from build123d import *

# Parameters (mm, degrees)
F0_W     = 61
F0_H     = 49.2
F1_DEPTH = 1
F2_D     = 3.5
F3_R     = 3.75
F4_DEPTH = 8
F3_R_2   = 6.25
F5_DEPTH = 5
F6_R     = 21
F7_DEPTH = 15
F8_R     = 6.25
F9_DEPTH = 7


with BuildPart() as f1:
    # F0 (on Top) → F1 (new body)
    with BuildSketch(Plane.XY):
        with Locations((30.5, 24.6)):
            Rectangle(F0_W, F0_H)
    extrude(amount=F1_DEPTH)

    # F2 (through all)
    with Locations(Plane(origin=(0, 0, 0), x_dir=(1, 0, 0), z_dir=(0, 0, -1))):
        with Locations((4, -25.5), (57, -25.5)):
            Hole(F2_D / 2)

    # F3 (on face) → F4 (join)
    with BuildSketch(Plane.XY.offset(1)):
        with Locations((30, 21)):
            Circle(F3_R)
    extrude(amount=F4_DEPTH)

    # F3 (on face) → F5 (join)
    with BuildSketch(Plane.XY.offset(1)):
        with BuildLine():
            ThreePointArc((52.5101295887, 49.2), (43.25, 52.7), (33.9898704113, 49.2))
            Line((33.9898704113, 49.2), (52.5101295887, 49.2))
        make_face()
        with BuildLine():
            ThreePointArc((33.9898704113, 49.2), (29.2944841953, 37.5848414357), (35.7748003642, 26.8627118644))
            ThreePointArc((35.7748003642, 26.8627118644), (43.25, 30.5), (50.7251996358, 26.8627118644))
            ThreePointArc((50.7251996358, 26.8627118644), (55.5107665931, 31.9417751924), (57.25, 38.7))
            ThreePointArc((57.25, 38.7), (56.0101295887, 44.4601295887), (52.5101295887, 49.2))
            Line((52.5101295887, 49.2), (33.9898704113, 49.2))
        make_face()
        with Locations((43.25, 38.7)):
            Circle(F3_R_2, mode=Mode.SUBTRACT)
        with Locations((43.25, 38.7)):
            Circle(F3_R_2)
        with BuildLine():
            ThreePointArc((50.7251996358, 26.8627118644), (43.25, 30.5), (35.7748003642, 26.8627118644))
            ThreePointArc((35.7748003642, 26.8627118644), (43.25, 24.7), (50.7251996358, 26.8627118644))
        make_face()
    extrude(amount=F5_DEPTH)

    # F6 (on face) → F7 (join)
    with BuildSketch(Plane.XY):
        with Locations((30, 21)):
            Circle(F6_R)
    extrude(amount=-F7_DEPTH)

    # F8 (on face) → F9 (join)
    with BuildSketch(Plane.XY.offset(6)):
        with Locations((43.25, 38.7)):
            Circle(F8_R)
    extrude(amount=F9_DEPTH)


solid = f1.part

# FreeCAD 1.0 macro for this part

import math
import FreeCAD as App
import Part
import Sketcher

V = App.Vector

doc = App.newDocument("Part")
body = doc.addObject("PartDesign::Body", "Body")

# Sketch on XY plane
sketch1 = body.newObject("Sketcher::SketchObject", "Sketch")
sketch1.AttachmentSupport = (doc.getObject("XY_Plane"), [""])
sketch1.MapMode = "FlatFace"
sketch1.addGeometry(Part.LineSegment(V(0, 49, 0), V(0, 0, 0)), False)
sketch1.addGeometry(Part.LineSegment(V(0, 0, 0), V(61, 0, 0)), False)
sketch1.addGeometry(Part.LineSegment(V(61, 0, 0), V(61, 49, 0)), False)
sketch1.addGeometry(Part.LineSegment(V(61, 49, 0), V(0, 49, 0)), False)
sketch1.addConstraint(Sketcher.Constraint("Coincident", 0, 2, 1, 1))
sketch1.addConstraint(Sketcher.Constraint("Coincident", 1, 2, 2, 1))
sketch1.addConstraint(Sketcher.Constraint("Coincident", 2, 2, 3, 1))
sketch1.addConstraint(Sketcher.Constraint("Coincident", 3, 2, 0, 1))
sketch1.addConstraint(Sketcher.Constraint("Vertical", 0))
sketch1.addConstraint(Sketcher.Constraint("Horizontal", 1))
sketch1.addConstraint(Sketcher.Constraint("Vertical", 2))
sketch1.addConstraint(Sketcher.Constraint("Horizontal", 3))
sketch1.addConstraint(Sketcher.Constraint("Coincident", 0, 2, -1, 1))
sketch1.addConstraint(Sketcher.Constraint("DistanceX", 1, 1, 1, 2, 61.0))
sketch1.addConstraint(Sketcher.Constraint("DistanceY", 0, 2, 0, 1, 49.2))
pad1 = body.newObject("PartDesign::Pad", "Pad")
pad1.Profile = sketch1
pad1.Length = 1

# Sketch on XY plane
sketch2 = body.newObject("Sketcher::SketchObject", "Sketch001")
sketch2.AttachmentSupport = (doc.getObject("XY_Plane"), [""])
sketch2.MapMode = "FlatFace"
sketch2.addGeometry(Part.Circle(V(4, 25.5, 0), V(0, 0, 1), 1.8), False)
sketch2.addGeometry(Part.Circle(V(57, 25.5, 0), V(0, 0, 1), 1.8), False)
sketch2.addConstraint(Sketcher.Constraint("Equal", 0, 1))
sketch2.addConstraint(Sketcher.Constraint("Horizontal", 0, 3, 1, 3))
sketch2.addConstraint(Sketcher.Constraint("Diameter", 0, 3.5))
sketch2.addConstraint(Sketcher.Constraint("DistanceX", -1, 1, 0, 3, 4.0))
sketch2.addConstraint(Sketcher.Constraint("DistanceX", -1, 1, 1, 3, 57.0))
sketch2.addConstraint(Sketcher.Constraint("DistanceY", -1, 1, 0, 3, 25.5))
doc.recompute()
hole = body.newObject("PartDesign::Hole", "Hole")
hole.Profile = sketch2
hole.ThreadType = "None"
hole.Diameter = 3.5
hole.DepthType = "ThroughAll"
hole.Reversed = True

# Sketch on XY plane
sketch3 = body.newObject("Sketcher::SketchObject", "Sketch002")
sketch3.AttachmentSupport = (doc.getObject("XY_Plane"), [""])
sketch3.MapMode = "FlatFace"
sketch3.AttachmentOffset = App.Placement(V(0, 0, 1), App.Rotation())
sketch3.addGeometry(Part.Circle(V(30, 21, 0), V(0, 0, 1), 3.8), False)
sketch3.addConstraint(Sketcher.Constraint("Diameter", 0, 7.5))
sketch3.addConstraint(Sketcher.Constraint("DistanceX", -1, 1, 0, 3, 30.0))
sketch3.addConstraint(Sketcher.Constraint("DistanceY", -1, 1, 0, 3, 21.0))
pad2 = body.newObject("PartDesign::Pad", "Pad001")
pad2.Profile = sketch3
pad2.Length = 8

# Sketch on XY plane
sketch4 = body.newObject("Sketcher::SketchObject", "Sketch003")
sketch4.AttachmentSupport = (doc.getObject("XY_Plane"), [""])
sketch4.MapMode = "FlatFace"
sketch4.AttachmentOffset = App.Placement(V(0, 0, 1), App.Rotation())
sketch4.addGeometry(Part.ArcOfCircle(Part.Circle(V(43, 39, 0), V(0, 0, 1), 14), math.radians(49), math.radians(131)), False)
sketch4.addGeometry(Part.ArcOfCircle(Part.Circle(V(43, 39, 0), V(0, 0, 1), 14), math.radians(131), math.radians(238)), False)
sketch4.addGeometry(Part.ArcOfCircle(Part.Circle(V(43, 39, 0), V(0, 0, 1), 14), math.radians(-122), math.radians(0)), False)
sketch4.addGeometry(Part.ArcOfCircle(Part.Circle(V(43, 39, 0), V(0, 0, 1), 14), math.radians(0), math.radians(49)), False)
sketch4.addConstraint(Sketcher.Constraint("Tangent", 0, 2, 1, 1))
sketch4.addConstraint(Sketcher.Constraint("Tangent", 1, 2, 2, 1))
sketch4.addConstraint(Sketcher.Constraint("Tangent", 2, 2, 3, 1))
sketch4.addConstraint(Sketcher.Constraint("Tangent", 3, 2, 0, 1))
sketch4.addConstraint(Sketcher.Constraint("Equal", 0, 1))
sketch4.addConstraint(Sketcher.Constraint("Horizontal", 3, 3, 2, 2))
sketch4.addConstraint(Sketcher.Constraint("Horizontal", 0, 2, 3, 2))
sketch4.addConstraint(Sketcher.Constraint("Radius", 0, 14.0))
sketch4.addConstraint(Sketcher.Constraint("DistanceY", -1, 1, 0, 3, 38.7))
sketch4.addConstraint(Sketcher.Constraint("DistanceY", -1, 1, 0, 2, 49.2))
sketch4.addConstraint(Sketcher.Constraint("DistanceX", -1, 1, 0, 3, 43.25))
sketch4.addConstraint(Sketcher.Constraint("DistanceX", -1, 1, 1, 2, 35.7748))
pad3 = body.newObject("PartDesign::Pad", "Pad002")
pad3.Profile = sketch4
pad3.Length = 5

# Sketch on XY plane
sketch5 = body.newObject("Sketcher::SketchObject", "Sketch004")
sketch5.AttachmentSupport = (doc.getObject("XY_Plane"), [""])
sketch5.MapMode = "FlatFace"
sketch5.addGeometry(Part.Circle(V(30, 21, 0), V(0, 0, 1), 21), False)
sketch5.addConstraint(Sketcher.Constraint("Diameter", 0, 42.0))
sketch5.addConstraint(Sketcher.Constraint("DistanceX", -1, 1, 0, 3, 30.0))
sketch5.addConstraint(Sketcher.Constraint("DistanceY", -1, 1, 0, 3, 21.0))
pad4 = body.newObject("PartDesign::Pad", "Pad003")
pad4.Profile = sketch5
pad4.Length = 15
pad4.Reversed = True

# Sketch on XY plane
sketch6 = body.newObject("Sketcher::SketchObject", "Sketch005")
sketch6.AttachmentSupport = (doc.getObject("XY_Plane"), [""])
sketch6.MapMode = "FlatFace"
sketch6.AttachmentOffset = App.Placement(V(0, 0, 6), App.Rotation())
sketch6.addGeometry(Part.Circle(V(43, 39, 0), V(0, 0, 1), 6), False)
sketch6.addConstraint(Sketcher.Constraint("Diameter", 0, 12.5))
sketch6.addConstraint(Sketcher.Constraint("DistanceY", -1, 1, 0, 3, 38.7))
sketch6.addConstraint(Sketcher.Constraint("DistanceX", -1, 1, 0, 3, 43.25))
pad5 = body.newObject("PartDesign::Pad", "Pad004")
pad5.Profile = sketch6
pad5.Length = 7

doc.recompute()
